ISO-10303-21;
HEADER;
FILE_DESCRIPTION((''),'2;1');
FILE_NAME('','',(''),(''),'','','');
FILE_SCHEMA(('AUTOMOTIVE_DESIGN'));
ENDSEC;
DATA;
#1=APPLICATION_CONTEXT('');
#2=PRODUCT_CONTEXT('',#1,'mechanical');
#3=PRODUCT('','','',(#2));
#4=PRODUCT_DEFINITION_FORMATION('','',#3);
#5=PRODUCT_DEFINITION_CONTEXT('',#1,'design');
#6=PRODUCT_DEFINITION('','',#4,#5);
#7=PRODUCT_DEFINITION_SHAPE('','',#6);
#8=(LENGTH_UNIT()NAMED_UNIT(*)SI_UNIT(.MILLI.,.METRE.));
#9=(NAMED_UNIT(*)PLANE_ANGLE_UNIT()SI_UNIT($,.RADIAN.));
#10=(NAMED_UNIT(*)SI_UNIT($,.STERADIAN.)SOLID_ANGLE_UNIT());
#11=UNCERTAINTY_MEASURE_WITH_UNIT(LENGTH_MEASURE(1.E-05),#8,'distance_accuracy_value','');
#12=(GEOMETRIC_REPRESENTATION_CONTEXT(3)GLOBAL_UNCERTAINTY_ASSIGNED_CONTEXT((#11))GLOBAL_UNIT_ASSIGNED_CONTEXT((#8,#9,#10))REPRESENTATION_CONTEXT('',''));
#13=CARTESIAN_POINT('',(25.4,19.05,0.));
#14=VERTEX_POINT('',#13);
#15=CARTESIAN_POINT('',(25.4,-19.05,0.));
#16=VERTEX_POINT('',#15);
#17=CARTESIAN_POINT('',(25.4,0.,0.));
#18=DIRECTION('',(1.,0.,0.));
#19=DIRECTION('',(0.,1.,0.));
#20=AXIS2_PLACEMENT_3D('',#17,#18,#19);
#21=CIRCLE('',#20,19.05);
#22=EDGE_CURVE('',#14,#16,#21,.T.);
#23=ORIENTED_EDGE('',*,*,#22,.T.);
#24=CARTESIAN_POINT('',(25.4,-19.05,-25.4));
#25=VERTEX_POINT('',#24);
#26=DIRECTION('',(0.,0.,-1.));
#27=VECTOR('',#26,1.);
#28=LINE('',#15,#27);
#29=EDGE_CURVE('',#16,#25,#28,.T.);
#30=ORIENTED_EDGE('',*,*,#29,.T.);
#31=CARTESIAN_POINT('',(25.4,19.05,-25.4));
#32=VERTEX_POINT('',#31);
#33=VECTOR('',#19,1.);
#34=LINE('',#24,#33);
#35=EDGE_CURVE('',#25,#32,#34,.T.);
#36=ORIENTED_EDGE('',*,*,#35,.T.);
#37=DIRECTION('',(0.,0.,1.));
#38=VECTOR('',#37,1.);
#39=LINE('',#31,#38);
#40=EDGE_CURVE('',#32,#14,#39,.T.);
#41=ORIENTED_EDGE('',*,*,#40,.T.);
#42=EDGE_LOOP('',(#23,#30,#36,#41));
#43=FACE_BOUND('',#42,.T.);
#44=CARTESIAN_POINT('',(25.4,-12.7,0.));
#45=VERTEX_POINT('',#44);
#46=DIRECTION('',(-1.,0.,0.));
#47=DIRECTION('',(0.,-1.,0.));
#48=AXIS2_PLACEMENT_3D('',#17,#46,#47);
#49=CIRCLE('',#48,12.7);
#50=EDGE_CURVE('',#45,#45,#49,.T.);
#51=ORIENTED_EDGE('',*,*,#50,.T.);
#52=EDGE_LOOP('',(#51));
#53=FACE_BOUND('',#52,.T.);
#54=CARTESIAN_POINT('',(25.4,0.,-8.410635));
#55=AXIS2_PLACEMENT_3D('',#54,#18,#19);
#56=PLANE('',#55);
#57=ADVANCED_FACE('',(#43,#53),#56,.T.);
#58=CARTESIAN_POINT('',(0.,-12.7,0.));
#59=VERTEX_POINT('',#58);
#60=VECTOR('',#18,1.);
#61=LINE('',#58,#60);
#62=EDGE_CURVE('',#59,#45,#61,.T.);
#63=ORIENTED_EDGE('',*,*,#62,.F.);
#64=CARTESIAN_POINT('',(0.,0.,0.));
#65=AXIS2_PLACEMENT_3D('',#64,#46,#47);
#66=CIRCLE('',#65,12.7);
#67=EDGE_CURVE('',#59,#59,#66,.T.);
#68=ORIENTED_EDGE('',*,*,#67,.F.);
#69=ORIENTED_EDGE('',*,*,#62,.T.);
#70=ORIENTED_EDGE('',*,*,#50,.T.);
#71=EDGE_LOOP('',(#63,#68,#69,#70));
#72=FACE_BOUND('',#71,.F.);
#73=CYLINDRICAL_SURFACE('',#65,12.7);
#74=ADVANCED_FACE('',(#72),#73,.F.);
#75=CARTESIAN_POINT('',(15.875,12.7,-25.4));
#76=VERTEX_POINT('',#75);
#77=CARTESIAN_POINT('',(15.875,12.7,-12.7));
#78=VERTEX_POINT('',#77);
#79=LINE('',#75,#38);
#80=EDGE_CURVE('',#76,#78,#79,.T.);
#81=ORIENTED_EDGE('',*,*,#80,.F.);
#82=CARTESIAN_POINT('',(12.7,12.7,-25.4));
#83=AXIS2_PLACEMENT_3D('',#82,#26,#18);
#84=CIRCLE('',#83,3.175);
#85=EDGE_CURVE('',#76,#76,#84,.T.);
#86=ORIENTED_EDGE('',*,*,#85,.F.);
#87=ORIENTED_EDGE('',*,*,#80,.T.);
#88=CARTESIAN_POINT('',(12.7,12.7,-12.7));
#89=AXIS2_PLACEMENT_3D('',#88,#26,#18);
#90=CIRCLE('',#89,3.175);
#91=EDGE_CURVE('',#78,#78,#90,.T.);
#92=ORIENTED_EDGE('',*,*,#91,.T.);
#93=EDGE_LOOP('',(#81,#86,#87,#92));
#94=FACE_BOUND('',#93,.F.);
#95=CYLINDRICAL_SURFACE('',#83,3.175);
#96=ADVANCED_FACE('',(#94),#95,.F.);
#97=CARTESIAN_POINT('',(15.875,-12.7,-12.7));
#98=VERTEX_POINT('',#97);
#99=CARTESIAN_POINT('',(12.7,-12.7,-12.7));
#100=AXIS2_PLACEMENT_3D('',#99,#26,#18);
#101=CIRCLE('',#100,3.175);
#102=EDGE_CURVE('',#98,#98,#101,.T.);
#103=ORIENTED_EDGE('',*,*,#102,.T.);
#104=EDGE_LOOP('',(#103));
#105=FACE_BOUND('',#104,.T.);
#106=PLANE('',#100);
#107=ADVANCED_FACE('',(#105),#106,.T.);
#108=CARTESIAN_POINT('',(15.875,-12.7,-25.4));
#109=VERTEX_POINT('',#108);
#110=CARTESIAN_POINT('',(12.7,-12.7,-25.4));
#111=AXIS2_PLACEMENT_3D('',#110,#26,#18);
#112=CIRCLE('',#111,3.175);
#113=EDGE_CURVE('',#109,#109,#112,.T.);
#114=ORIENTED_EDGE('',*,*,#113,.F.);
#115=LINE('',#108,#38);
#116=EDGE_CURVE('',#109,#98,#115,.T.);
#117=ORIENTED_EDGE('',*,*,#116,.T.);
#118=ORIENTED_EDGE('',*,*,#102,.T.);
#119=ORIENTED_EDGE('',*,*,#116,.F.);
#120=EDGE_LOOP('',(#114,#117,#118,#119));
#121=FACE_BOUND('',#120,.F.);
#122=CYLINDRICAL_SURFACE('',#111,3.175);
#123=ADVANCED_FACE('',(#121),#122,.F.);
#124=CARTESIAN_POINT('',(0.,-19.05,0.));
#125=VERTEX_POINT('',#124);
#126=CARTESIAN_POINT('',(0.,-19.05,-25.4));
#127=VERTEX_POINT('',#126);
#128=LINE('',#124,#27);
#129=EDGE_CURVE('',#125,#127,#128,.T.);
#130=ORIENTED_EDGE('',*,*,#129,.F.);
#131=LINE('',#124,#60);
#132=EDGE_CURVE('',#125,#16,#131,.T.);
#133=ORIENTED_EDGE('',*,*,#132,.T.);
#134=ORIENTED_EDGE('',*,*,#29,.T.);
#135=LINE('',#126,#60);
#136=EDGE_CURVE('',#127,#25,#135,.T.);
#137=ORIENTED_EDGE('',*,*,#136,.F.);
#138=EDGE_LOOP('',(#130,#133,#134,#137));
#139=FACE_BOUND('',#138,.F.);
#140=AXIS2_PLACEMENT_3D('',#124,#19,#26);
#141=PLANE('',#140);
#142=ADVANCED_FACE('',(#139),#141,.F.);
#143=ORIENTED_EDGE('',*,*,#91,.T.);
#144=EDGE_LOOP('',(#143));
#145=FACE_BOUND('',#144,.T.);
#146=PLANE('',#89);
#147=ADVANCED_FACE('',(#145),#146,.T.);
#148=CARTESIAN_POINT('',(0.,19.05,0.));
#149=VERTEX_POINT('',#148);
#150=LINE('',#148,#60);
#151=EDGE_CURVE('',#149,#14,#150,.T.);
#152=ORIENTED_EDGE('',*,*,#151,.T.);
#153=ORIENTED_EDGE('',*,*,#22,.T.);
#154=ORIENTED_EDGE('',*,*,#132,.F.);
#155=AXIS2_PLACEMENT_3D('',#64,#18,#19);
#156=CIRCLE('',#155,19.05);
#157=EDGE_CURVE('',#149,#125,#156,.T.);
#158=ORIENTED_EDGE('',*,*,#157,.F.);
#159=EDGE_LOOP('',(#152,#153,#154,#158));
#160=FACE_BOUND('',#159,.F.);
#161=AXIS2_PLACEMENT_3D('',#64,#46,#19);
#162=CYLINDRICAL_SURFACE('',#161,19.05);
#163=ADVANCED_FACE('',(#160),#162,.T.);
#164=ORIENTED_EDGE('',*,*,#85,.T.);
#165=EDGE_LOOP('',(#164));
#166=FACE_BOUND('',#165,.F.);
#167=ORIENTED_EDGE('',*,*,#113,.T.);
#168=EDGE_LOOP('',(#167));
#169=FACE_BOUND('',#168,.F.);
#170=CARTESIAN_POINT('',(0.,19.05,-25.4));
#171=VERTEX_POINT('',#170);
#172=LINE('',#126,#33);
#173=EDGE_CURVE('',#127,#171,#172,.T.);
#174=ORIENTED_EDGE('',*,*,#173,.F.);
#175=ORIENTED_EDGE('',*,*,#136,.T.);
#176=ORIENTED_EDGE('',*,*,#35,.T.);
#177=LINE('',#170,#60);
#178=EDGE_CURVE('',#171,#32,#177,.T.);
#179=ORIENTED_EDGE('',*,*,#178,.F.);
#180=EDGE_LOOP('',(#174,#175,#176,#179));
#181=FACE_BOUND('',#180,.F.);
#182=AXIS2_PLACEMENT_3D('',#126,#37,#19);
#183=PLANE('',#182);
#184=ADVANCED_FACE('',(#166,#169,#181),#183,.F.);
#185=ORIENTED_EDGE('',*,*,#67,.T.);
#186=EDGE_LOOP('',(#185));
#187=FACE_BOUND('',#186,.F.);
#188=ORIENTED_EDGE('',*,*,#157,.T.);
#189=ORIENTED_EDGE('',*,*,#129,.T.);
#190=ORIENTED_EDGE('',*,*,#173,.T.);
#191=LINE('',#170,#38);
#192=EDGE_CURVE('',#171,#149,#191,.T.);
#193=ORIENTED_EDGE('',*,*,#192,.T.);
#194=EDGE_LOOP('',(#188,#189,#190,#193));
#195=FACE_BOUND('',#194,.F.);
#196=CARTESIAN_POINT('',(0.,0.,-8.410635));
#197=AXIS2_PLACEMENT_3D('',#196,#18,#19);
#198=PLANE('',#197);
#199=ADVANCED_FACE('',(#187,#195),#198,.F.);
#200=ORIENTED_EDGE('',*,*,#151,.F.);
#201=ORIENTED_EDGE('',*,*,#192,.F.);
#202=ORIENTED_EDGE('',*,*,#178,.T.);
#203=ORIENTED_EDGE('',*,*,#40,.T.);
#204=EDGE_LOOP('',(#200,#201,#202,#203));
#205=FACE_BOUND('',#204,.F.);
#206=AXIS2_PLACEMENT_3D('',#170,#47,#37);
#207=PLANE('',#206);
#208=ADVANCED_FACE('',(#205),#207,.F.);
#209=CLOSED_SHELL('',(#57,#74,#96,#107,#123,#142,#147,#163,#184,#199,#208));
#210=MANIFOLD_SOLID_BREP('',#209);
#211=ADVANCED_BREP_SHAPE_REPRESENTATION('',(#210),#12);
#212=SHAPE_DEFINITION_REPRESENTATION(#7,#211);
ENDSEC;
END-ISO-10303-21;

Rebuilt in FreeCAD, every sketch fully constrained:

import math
import FreeCAD as App
import Part
import Sketcher

V = App.Vector
Q = App.Units.Quantity

doc = App.newDocument("Part")
body = doc.addObject("PartDesign::Body", "Body")

sketch1 = doc.addObject("Sketcher::SketchObject", "Sketch")
body.addObject(sketch1)
sketch1.AttachmentSupport = (doc.YZ_Plane, [""])
sketch1.MapMode = "FlatFace"
sketch1.addGeometry([
    Part.ArcOfCircle(Part.Circle(V(0, 0, 0), V(0, 0, 1), 19), math.radians(0), math.radians(180)),
    Part.LineSegment(V(-19, 0, 0), V(-19, -25, 0)),
    Part.LineSegment(V(-19, -25, 0), V(19, -25, 0)),
    Part.LineSegment(V(19, -25, 0), V(19, 0, 0)),
    Part.Circle(V(0, 0, 0), V(0, 0, 1), 13),
], False)
sketch1.addConstraint([
    Sketcher.Constraint("Tangent", 0, 2, 1, 1),
    Sketcher.Constraint("Coincident", 1, 2, 2, 1),
    Sketcher.Constraint("Coincident", 2, 2, 3, 1),
    Sketcher.Constraint("Tangent", 3, 2, 0, 1),
    Sketcher.Constraint("Vertical", 1),
    Sketcher.Constraint("Horizontal", 2),
    Sketcher.Constraint("Vertical", 3),
    Sketcher.Constraint("Coincident", 0, 3, -1, 1),
    Sketcher.Constraint("Coincident", 4, 3, -1, 1),
    Sketcher.Constraint("Diameter", 4, Q("1 in")),
    Sketcher.Constraint("DistanceY", 1, 2, 1, 1, Q("1 in")),
    Sketcher.Constraint("Radius", 0, Q("0.75 in")),
])
pad1 = doc.addObject("PartDesign::Pad", "Pad")
body.addObject(pad1)
pad1.Profile = sketch1
pad1.Length = Q("1 in")

sketch2 = doc.addObject("Sketcher::SketchObject", "Sketch001")
body.addObject(sketch2)
sketch2.AttachmentSupport = (doc.XY_Plane, [""])
sketch2.MapMode = "FlatFace"
sketch2.AttachmentOffset = App.Placement(V(0, 0, -1 * 25.4), App.Rotation())
sketch2.addGeometry([
    Part.Circle(V(12.7, -12.7, 0), V(0, 0, 1), 3.2),
    Part.Circle(V(12.7, 12.7, 0), V(0, 0, 1), 3.2),
], False)
sketch2.addConstraint([
    Sketcher.Constraint("Equal", 0, 1),
    Sketcher.Constraint("Symmetric", 0, 3, 1, 3, -1),
    Sketcher.Constraint("Diameter", 0, Q("0.25 in")),
    Sketcher.Constraint("DistanceY", 0, 3, 1, 3, Q("1 in")),
    Sketcher.Constraint("DistanceX", -1, 1, 0, 3, Q("0.5 in")),
])
pocket1 = doc.addObject("PartDesign::Pocket", "Pocket")
body.addObject(pocket1)
pocket1.Profile = sketch2
pocket1.Length = Q("0.5 in")
pocket1.Reversed = True

doc.recompute()
